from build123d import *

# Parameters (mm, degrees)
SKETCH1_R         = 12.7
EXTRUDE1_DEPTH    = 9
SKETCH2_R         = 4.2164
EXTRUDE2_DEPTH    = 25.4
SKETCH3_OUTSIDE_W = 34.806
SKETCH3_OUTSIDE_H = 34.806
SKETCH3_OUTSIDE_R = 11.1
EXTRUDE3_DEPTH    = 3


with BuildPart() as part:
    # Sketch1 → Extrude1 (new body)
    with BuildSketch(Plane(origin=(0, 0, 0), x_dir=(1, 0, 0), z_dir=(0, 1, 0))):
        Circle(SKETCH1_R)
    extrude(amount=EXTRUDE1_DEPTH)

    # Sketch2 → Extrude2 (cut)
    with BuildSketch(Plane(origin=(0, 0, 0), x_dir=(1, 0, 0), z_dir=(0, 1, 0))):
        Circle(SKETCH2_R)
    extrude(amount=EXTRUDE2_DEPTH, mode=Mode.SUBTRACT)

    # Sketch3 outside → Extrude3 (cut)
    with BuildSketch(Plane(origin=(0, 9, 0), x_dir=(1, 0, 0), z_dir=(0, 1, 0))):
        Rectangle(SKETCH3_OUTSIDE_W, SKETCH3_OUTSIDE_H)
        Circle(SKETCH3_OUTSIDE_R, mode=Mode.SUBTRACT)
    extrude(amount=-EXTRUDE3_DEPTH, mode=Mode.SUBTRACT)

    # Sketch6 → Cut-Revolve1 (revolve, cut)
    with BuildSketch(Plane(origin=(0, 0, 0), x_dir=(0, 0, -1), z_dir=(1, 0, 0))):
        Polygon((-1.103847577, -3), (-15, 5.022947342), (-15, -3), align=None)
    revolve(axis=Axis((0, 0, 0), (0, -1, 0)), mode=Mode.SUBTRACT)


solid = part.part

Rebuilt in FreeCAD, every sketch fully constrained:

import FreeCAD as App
import Part
import Sketcher
from FreeCAD import Vector
Q = App.Units.Quantity

doc = App.newDocument("Part")
body = doc.addObject("PartDesign::Body", "Body")

sketch1 = body.newObject("Sketcher::SketchObject", "Sketch")
sketch1.AttachmentSupport = (doc.getObject("XZ_Plane"), [""])
sketch1.MapMode = "FlatFace"
sketch1.addGeometry(Part.Circle(Vector(0, 0, 0), Vector(0, 0, 1), 12.7), False)
sketch1.addConstraint([
    Sketcher.Constraint("Coincident", 0, 3, -1, 1),
    Sketcher.Constraint("Diameter", 0, Q("25.4 mm")),
])
pad1 = body.newObject("PartDesign::Pad", "Pad")
pad1.Profile = sketch1
pad1.Length = 9
pad1.Reversed = True

sketch2 = body.newObject("Sketcher::SketchObject", "Sketch001")
sketch2.AttachmentSupport = (doc.getObject("XZ_Plane"), [""])
sketch2.MapMode = "FlatFace"
sketch2.addGeometry(Part.Circle(Vector(0, 0, 0), Vector(0, 0, 1), 4.2164), False)
sketch2.addConstraint([
    Sketcher.Constraint("Coincident", 0, 3, -1, 1),
    Sketcher.Constraint("Diameter", 0, Q("8.4328 mm")),
])
pocket1 = body.newObject("PartDesign::Pocket", "Pocket")
pocket1.Profile = sketch2
pocket1.Length = 25.4

sketch3 = body.newObject("Sketcher::SketchObject", "Sketch002")
sketch3.AttachmentSupport = (doc.getObject("XZ_Plane"), [""])
sketch3.MapMode = "FlatFace"
sketch3.AttachmentOffset = App.Placement(Vector(0, 0, -9), App.Rotation())
sketch3.addGeometry([
    Part.LineSegment(Vector(-17.403, -17.403, 0), Vector(-17.403, 17.403, 0)),
    Part.LineSegment(Vector(-17.403, 17.403, 0), Vector(17.403, 17.403, 0)),
    Part.LineSegment(Vector(17.403, 17.403, 0), Vector(17.403, -17.403, 0)),
    Part.LineSegment(Vector(17.403, -17.403, 0), Vector(-17.403, -17.403, 0)),
    Part.Circle(Vector(0, 0, 0), Vector(0, 0, 1), 11.1),
], False)
sketch3.addConstraint([
    Sketcher.Constraint("Coincident", 0, 2, 1, 1),
    Sketcher.Constraint("Coincident", 1, 2, 2, 1),
    Sketcher.Constraint("Coincident", 2, 2, 3, 1),
    Sketcher.Constraint("Coincident", 3, 2, 0, 1),
    Sketcher.Constraint("Vertical", 0),
    Sketcher.Constraint("Horizontal", 1),
    Sketcher.Constraint("Vertical", 2),
    Sketcher.Constraint("Horizontal", 3),
    Sketcher.Constraint("Coincident", 4, 3, -1, 1),
    Sketcher.Constraint("Symmetric", 0, 2, 2, 2, -1, 1),
    Sketcher.Constraint("Equal", 3, 0),
    Sketcher.Constraint("Diameter", 4, Q("22.2 mm")),
    Sketcher.Constraint("DistanceX", 1, 1, 1, 2, Q("34.806 mm")),
])
pocket2 = body.newObject("PartDesign::Pocket", "Pocket001")
pocket2.Profile = sketch3
pocket2.Length = 3
pocket2.Reversed = True

sketch4 = body.newObject("Sketcher::SketchObject", "Sketch003")
sketch4.AttachmentSupport = (doc.getObject("YZ_Plane"), [""])
sketch4.MapMode = "FlatFace"
sketch4.addGeometry([
    Part.LineSegment(Vector(-3, 1.103848, 0), Vector(5.022947, 15, 0)),
    Part.LineSegment(Vector(5.022947, 15, 0), Vector(-3, 15, 0)),
    Part.LineSegment(Vector(-3, 15, 0), Vector(-3, 1.103848, 0)),
], False)
sketch4.addConstraint([
    Sketcher.Constraint("Coincident", 0, 2, 1, 1),
    Sketcher.Constraint("Coincident", 1, 2, 2, 1),
    Sketcher.Constraint("Coincident", 2, 2, 0, 1),
    Sketcher.Constraint("Horizontal", 1),
    Sketcher.Constraint("Vertical", 2),
    Sketcher.Constraint("Angle", 0, Q("60 deg")),
    Sketcher.Constraint("DistanceY", -1, 1, 0, 2, Q("15 mm")),
    Sketcher.Constraint("DistanceX", 1, 2, -1, 1, Q("3 mm")),
    Sketcher.Constraint("DistanceX", 1, 2, 1, 1, Q("8.022947 mm")),
])
groove = body.newObject("PartDesign::Groove", "Groove")
groove.Profile = sketch4
groove.ReferenceAxis = (sketch4, ["H_Axis"])
groove.Angle = 360

doc.recompute()
